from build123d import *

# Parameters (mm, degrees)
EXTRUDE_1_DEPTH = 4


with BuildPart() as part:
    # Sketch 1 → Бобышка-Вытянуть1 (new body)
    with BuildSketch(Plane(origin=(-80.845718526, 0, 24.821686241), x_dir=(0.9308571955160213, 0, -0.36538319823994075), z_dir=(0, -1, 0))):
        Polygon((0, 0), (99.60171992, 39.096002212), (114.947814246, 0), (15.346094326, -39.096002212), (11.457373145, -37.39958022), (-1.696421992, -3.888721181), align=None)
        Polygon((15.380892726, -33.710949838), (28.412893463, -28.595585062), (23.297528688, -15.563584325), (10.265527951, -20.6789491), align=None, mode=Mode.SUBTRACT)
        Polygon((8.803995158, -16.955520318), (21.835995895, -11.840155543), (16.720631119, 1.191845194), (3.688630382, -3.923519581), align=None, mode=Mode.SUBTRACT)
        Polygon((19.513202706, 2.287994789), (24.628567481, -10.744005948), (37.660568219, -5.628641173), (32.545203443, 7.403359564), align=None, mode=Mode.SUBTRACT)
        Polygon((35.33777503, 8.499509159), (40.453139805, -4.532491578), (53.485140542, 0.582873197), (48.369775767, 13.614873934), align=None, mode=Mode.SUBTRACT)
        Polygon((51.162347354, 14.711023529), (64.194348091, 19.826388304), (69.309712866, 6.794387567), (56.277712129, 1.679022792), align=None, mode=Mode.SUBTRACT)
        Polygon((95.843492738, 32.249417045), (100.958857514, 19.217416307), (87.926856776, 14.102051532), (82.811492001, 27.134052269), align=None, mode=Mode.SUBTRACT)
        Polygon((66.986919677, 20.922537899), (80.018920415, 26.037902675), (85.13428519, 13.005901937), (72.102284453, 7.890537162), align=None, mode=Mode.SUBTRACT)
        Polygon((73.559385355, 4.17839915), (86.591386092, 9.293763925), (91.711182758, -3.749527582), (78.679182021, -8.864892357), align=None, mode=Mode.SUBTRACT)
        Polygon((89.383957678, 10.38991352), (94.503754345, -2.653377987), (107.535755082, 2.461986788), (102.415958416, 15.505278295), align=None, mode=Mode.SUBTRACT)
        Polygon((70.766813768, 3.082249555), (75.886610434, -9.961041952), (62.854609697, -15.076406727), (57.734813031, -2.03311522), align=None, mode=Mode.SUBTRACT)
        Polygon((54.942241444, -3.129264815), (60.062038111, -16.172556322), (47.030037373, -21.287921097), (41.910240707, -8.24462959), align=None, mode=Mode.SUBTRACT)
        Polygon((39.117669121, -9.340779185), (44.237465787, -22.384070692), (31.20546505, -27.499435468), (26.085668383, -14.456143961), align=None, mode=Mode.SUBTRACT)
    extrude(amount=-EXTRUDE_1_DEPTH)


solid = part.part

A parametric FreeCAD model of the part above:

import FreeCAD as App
import Part
import Sketcher

V = App.Vector

doc = App.newDocument("Part")
params = doc.addObject("Spreadsheet::Sheet", "Params")
for row, (alias, value) in enumerate([
    ("sketch1_width", "107 mm"),
    ("sketch1_width2", "14 mm"),
    ("sketch1_height", "36 mm"),
    ("sketch1_height2", "42 mm"),
    ("pad1_length", "4 mm"),
], start=1):
    params.set(f"A{row}", alias)
    params.set(f"B{row}", "=" + value)
    params.setAlias(f"B{row}", alias)

body = doc.addObject("PartDesign::Body", "Body")

sketch1 = doc.addObject("Sketcher::SketchObject", "Sketch")
body.addObject(sketch1)
sketch1.AttachmentSupport = (doc.XZ_Plane, [""])
sketch1.MapMode = "FlatFace"
sketch1.addGeometry(Part.LineSegment(V(26.154282, 24.821686, 0), V(-80.845719, 24.821686, 0)), False)
sketch1.addGeometry(Part.LineSegment(V(-80.845719, 24.821686, 0), V(-83.845719, 21.821686, 0)), False)
sketch1.addGeometry(Part.LineSegment(V(-83.845719, 21.821686, 0), V(-83.845719, -14.178314, 0)), False)
sketch1.addGeometry(Part.LineSegment(V(-83.845719, -14.178314, 0), V(-80.845719, -17.178314, 0)), False)
sketch1.addGeometry(Part.LineSegment(V(-80.845719, -17.178314, 0), V(26.154282, -17.178314, 0)), False)
sketch1.addGeometry(Part.LineSegment(V(26.154282, -17.178314, 0), V(26.154282, 24.821686, 0)), False)
sketch1.addGeometry(Part.LineSegment(V(-13.845718, 1.833816, 0), V(-13.845718, -12.178314, 0)), False)
sketch1.addGeometry(Part.LineSegment(V(-13.845718, -12.178314, 0), V(-27.845718, -12.178314, 0)), False)
sketch1.addGeometry(Part.LineSegment(V(-27.845718, -12.178314, 0), V(-27.845718, 1.833816, 0)), False)
sketch1.addGeometry(Part.LineSegment(V(-27.845718, 1.833816, 0), V(-13.845718, 1.833816, 0)), False)
sketch1.addGeometry(Part.LineSegment(V(-47.845719, 1.833816, 0), V(-47.845718, -12.178314, 0)), False)
sketch1.addGeometry(Part.LineSegment(V(-47.845718, -12.178314, 0), V(-61.845719, -12.178314, 0)), False)
sketch1.addGeometry(Part.LineSegment(V(-61.845719, -12.178314, 0), V(-61.845719, 1.833816, 0)), False)
sketch1.addGeometry(Part.LineSegment(V(-61.845719, 1.833816, 0), V(-47.845719, 1.833816, 0)), False)
sketch1.addGeometry(Part.LineSegment(V(-78.845719, -12.178314, 0), V(-78.845719, 1.821686, 0)), False)
sketch1.addGeometry(Part.LineSegment(V(-78.845719, 1.821686, 0), V(-64.845719, 1.821686, 0)), False)
sketch1.addGeometry(Part.LineSegment(V(-64.845719, 1.821686, 0), V(-64.845719, -12.178314, 0)), False)
sketch1.addGeometry(Part.LineSegment(V(-64.845719, -12.178314, 0), V(-78.845719, -12.178314, 0)), False)
sketch1.addGeometry(Part.LineSegment(V(-30.845718, 1.833816, 0), V(-30.845718, -12.178314, 0)), False)
sketch1.addGeometry(Part.LineSegment(V(-30.845718, -12.178314, 0), V(-44.845718, -12.178314, 0)), False)
sketch1.addGeometry(Part.LineSegment(V(-44.845718, -12.178314, 0), V(-44.845719, 1.833816, 0)), False)
sketch1.addGeometry(Part.LineSegment(V(-44.845719, 1.833816, 0), V(-30.845718, 1.833816, 0)), False)
sketch1.addGeometry(Part.LineSegment(V(-61.845719, 19.821686, 0), V(-47.845719, 19.821686, 0)), False)
sketch1.addGeometry(Part.LineSegment(V(-47.845719, 19.821686, 0), V(-47.845719, 5.821686, 0)), False)
sketch1.addGeometry(Part.LineSegment(V(-47.845719, 5.821686, 0), V(-61.845719, 5.821686, 0)), False)
sketch1.addGeometry(Part.LineSegment(V(-61.845719, 5.821686, 0), V(-61.845719, 19.821686, 0)), False)
sketch1.addGeometry(Part.LineSegment(V(-78.845719, 5.821686, 0), V(-78.845719, 19.821686, 0)), False)
sketch1.addGeometry(Part.LineSegment(V(-78.845719, 19.821686, 0), V(-64.845719, 19.821686, 0)), False)
sketch1.addGeometry(Part.LineSegment(V(-64.845719, 19.821686, 0), V(-64.845719, 5.821686, 0)), False)
sketch1.addGeometry(Part.LineSegment(V(-64.845719, 5.821686, 0), V(-78.845719, 5.821686, 0)), False)
sketch1.addGeometry(Part.LineSegment(V(6.154282, 1.833816, 0), V(20.154282, 1.833816, 0)), False)
sketch1.addGeometry(Part.LineSegment(V(20.154282, 1.833816, 0), V(20.154282, -12.178314, 0)), False)
sketch1.addGeometry(Part.LineSegment(V(20.154282, -12.178314, 0), V(6.154282, -12.178314, 0)), False)
sketch1.addGeometry(Part.LineSegment(V(6.154282, -12.178314, 0), V(6.154282, 1.833816, 0)), False)
sketch1.addGeometry(Part.LineSegment(V(-10.845718, 1.833816, 0), V(3.154282, 1.833816, 0)), False)
sketch1.addGeometry(Part.LineSegment(V(3.154282, 1.833816, 0), V(3.154282, -12.178314, 0)), False)
sketch1.addGeometry(Part.LineSegment(V(3.154282, -12.178314, 0), V(-10.845718, -12.178314, 0)), False)
sketch1.addGeometry(Part.LineSegment(V(-10.845718, -12.178314, 0), V(-10.845718, 1.833816, 0)), False)
sketch1.addGeometry(Part.LineSegment(V(-27.845719, 19.821686, 0), V(-13.845719, 19.821686, 0)), False)
sketch1.addGeometry(Part.LineSegment(V(-13.845719, 19.821686, 0), V(-13.845718, 5.821686, 0)), False)
sketch1.addGeometry(Part.LineSegment(V(-13.845718, 5.821686, 0), V(-27.845718, 5.821686, 0)), False)
sketch1.addGeometry(Part.LineSegment(V(-27.845718, 5.821686, 0), V(-27.845719, 19.821686, 0)), False)
sketch1.addGeometry(Part.LineSegment(V(20.154282, 19.821686, 0), V(20.154282, 5.821686, 0)), False)
sketch1.addGeometry(Part.LineSegment(V(20.154282, 5.821686, 0), V(6.154282, 5.821686, 0)), False)
sketch1.addGeometry(Part.LineSegment(V(6.154282, 5.821686, 0), V(6.154282, 19.821686, 0)), False)
sketch1.addGeometry(Part.LineSegment(V(6.154282, 19.821686, 0), V(20.154282, 19.821686, 0)), False)
sketch1.addGeometry(Part.LineSegment(V(-10.845718, 19.821686, 0), V(3.154282, 19.821686, 0)), False)
sketch1.addGeometry(Part.LineSegment(V(3.154282, 19.821686, 0), V(3.154282, 5.821686, 0)), False)
sketch1.addGeometry(Part.LineSegment(V(3.154282, 5.821686, 0), V(-10.845718, 5.821686, 0)), False)
sketch1.addGeometry(Part.LineSegment(V(-10.845718, 5.821686, 0), V(-10.845718, 19.821686, 0)), False)
sketch1.addGeometry(Part.LineSegment(V(-44.845719, 19.821686, 0), V(-30.845719, 19.821686, 0)), False)
sketch1.addGeometry(Part.LineSegment(V(-30.845719, 19.821686, 0), V(-30.845719, 5.821686, 0)), False)
sketch1.addGeometry(Part.LineSegment(V(-30.845719, 5.821686, 0), V(-44.845719, 5.821686, 0)), False)
sketch1.addGeometry(Part.LineSegment(V(-44.845719, 5.821686, 0), V(-44.845719, 19.821686, 0)), False)
sketch1.addConstraint(Sketcher.Constraint("Coincident", 0, 2, 1, 1))
sketch1.addConstraint(Sketcher.Constraint("Coincident", 1, 2, 2, 1))
sketch1.addConstraint(Sketcher.Constraint("Coincident", 2, 2, 3, 1))
sketch1.addConstraint(Sketcher.Constraint("Coincident", 3, 2, 4, 1))
sketch1.addConstraint(Sketcher.Constraint("Coincident", 4, 2, 5, 1))
sketch1.addConstraint(Sketcher.Constraint("Coincident", 5, 2, 0, 1))
sketch1.addConstraint(Sketcher.Constraint("Coincident", 6, 2, 7, 1))
sketch1.addConstraint(Sketcher.Constraint("Coincident", 7, 2, 8, 1))
sketch1.addConstraint(Sketcher.Constraint("Coincident", 8, 2, 9, 1))
sketch1.addConstraint(Sketcher.Constraint("Coincident", 9, 2, 6, 1))
sketch1.addConstraint(Sketcher.Constraint("Coincident", 10, 2, 11, 1))
sketch1.addConstraint(Sketcher.Constraint("Coincident", 11, 2, 12, 1))
sketch1.addConstraint(Sketcher.Constraint("Coincident", 12, 2, 13, 1))
sketch1.addConstraint(Sketcher.Constraint("Coincident", 13, 2, 10, 1))
sketch1.addConstraint(Sketcher.Constraint("Coincident", 14, 2, 15, 1))
sketch1.addConstraint(Sketcher.Constraint("Coincident", 15, 2, 16, 1))
sketch1.addConstraint(Sketcher.Constraint("Coincident", 16, 2, 17, 1))
sketch1.addConstraint(Sketcher.Constraint("Coincident", 17, 2, 14, 1))
sketch1.addConstraint(Sketcher.Constraint("Coincident", 18, 2, 19, 1))
sketch1.addConstraint(Sketcher.Constraint("Coincident", 19, 2, 20, 1))
sketch1.addConstraint(Sketcher.Constraint("Coincident", 20, 2, 21, 1))
sketch1.addConstraint(Sketcher.Constraint("Coincident", 21, 2, 18, 1))
sketch1.addConstraint(Sketcher.Constraint("Coincident", 22, 2, 23, 1))
sketch1.addConstraint(Sketcher.Constraint("Coincident", 23, 2, 24, 1))
sketch1.addConstraint(Sketcher.Constraint("Coincident", 24, 2, 25, 1))
sketch1.addConstraint(Sketcher.Constraint("Coincident", 25, 2, 22, 1))
sketch1.addConstraint(Sketcher.Constraint("Coincident", 26, 2, 27, 1))
sketch1.addConstraint(Sketcher.Constraint("Coincident", 27, 2, 28, 1))
sketch1.addConstraint(Sketcher.Constraint("Coincident", 28, 2, 29, 1))
sketch1.addConstraint(Sketcher.Constraint("Coincident", 29, 2, 26, 1))
sketch1.addConstraint(Sketcher.Constraint("Coincident", 30, 2, 31, 1))
sketch1.addConstraint(Sketcher.Constraint("Coincident", 31, 2, 32, 1))
sketch1.addConstraint(Sketcher.Constraint("Coincident", 32, 2, 33, 1))
sketch1.addConstraint(Sketcher.Constraint("Coincident", 33, 2, 30, 1))
sketch1.addConstraint(Sketcher.Constraint("Coincident", 34, 2, 35, 1))
sketch1.addConstraint(Sketcher.Constraint("Coincident", 35, 2, 36, 1))
sketch1.addConstraint(Sketcher.Constraint("Coincident", 36, 2, 37, 1))
sketch1.addConstraint(Sketcher.Constraint("Coincident", 37, 2, 34, 1))
sketch1.addConstraint(Sketcher.Constraint("Coincident", 38, 2, 39, 1))
sketch1.addConstraint(Sketcher.Constraint("Coincident", 39, 2, 40, 1))
sketch1.addConstraint(Sketcher.Constraint("Coincident", 40, 2, 41, 1))
sketch1.addConstraint(Sketcher.Constraint("Coincident", 41, 2, 38, 1))
sketch1.addConstraint(Sketcher.Constraint("Coincident", 42, 2, 43, 1))
sketch1.addConstraint(Sketcher.Constraint("Coincident", 43, 2, 44, 1))
sketch1.addConstraint(Sketcher.Constraint("Coincident", 44, 2, 45, 1))
sketch1.addConstraint(Sketcher.Constraint("Coincident", 45, 2, 42, 1))
sketch1.addConstraint(Sketcher.Constraint("Coincident", 46, 2, 47, 1))
sketch1.addConstraint(Sketcher.Constraint("Coincident", 47, 2, 48, 1))
sketch1.addConstraint(Sketcher.Constraint("Coincident", 48, 2, 49, 1))
sketch1.addConstraint(Sketcher.Constraint("Coincident", 49, 2, 46, 1))
sketch1.addConstraint(Sketcher.Constraint("Coincident", 50, 2, 51, 1))
sketch1.addConstraint(Sketcher.Constraint("Coincident", 51, 2, 52, 1))
sketch1.addConstraint(Sketcher.Constraint("Coincident", 52, 2, 53, 1))
sketch1.addConstraint(Sketcher.Constraint("Coincident", 53, 2, 50, 1))
sketch1.addConstraint(Sketcher.Constraint("Horizontal", 0))
sketch1.addConstraint(Sketcher.Constraint("Vertical", 2))
sketch1.addConstraint(Sketcher.Constraint("Horizontal", 4))
sketch1.addConstraint(Sketcher.Constraint("Vertical", 5))
sketch1.addConstraint(Sketcher.Constraint("Vertical", 6))
sketch1.addConstraint(Sketcher.Constraint("Horizontal", 7))
sketch1.addConstraint(Sketcher.Constraint("Vertical", 8))
sketch1.addConstraint(Sketcher.Constraint("Horizontal", 9))
sketch1.addConstraint(Sketcher.Constraint("Vertical", 10))
sketch1.addConstraint(Sketcher.Constraint("Horizontal", 11))
sketch1.addConstraint(Sketcher.Constraint("Vertical", 12))
sketch1.addConstraint(Sketcher.Constraint("Horizontal", 13))
sketch1.addConstraint(Sketcher.Constraint("Vertical", 14))
sketch1.addConstraint(Sketcher.Constraint("Horizontal", 15))
sketch1.addConstraint(Sketcher.Constraint("Vertical", 16))
sketch1.addConstraint(Sketcher.Constraint("Horizontal", 17))
sketch1.addConstraint(Sketcher.Constraint("Vertical", 18))
sketch1.addConstraint(Sketcher.Constraint("Horizontal", 19))
sketch1.addConstraint(Sketcher.Constraint("Vertical", 20))
sketch1.addConstraint(Sketcher.Constraint("Horizontal", 21))
sketch1.addConstraint(Sketcher.Constraint("Horizontal", 22))
sketch1.addConstraint(Sketcher.Constraint("Vertical", 23))
sketch1.addConstraint(Sketcher.Constraint("Horizontal", 24))
sketch1.addConstraint(Sketcher.Constraint("Vertical", 25))
sketch1.addConstraint(Sketcher.Constraint("Vertical", 26))
sketch1.addConstraint(Sketcher.Constraint("Horizontal", 27))
sketch1.addConstraint(Sketcher.Constraint("Vertical", 28))
sketch1.addConstraint(Sketcher.Constraint("Horizontal", 29))
sketch1.addConstraint(Sketcher.Constraint("Horizontal", 30))
sketch1.addConstraint(Sketcher.Constraint("Vertical", 31))
sketch1.addConstraint(Sketcher.Constraint("Horizontal", 32))
sketch1.addConstraint(Sketcher.Constraint("Vertical", 33))
sketch1.addConstraint(Sketcher.Constraint("Horizontal", 34))
sketch1.addConstraint(Sketcher.Constraint("Vertical", 35))
sketch1.addConstraint(Sketcher.Constraint("Horizontal", 36))
sketch1.addConstraint(Sketcher.Constraint("Vertical", 37))
sketch1.addConstraint(Sketcher.Constraint("Horizontal", 38))
sketch1.addConstraint(Sketcher.Constraint("Vertical", 39))
sketch1.addConstraint(Sketcher.Constraint("Horizontal", 40))
sketch1.addConstraint(Sketcher.Constraint("Vertical", 41))
sketch1.addConstraint(Sketcher.Constraint("Vertical", 42))
sketch1.addConstraint(Sketcher.Constraint("Horizontal", 43))
sketch1.addConstraint(Sketcher.Constraint("Vertical", 44))
sketch1.addConstraint(Sketcher.Constraint("Horizontal", 45))
sketch1.addConstraint(Sketcher.Constraint("Horizontal", 46))
sketch1.addConstraint(Sketcher.Constraint("Vertical", 47))
sketch1.addConstraint(Sketcher.Constraint("Horizontal", 48))
sketch1.addConstraint(Sketcher.Constraint("Vertical", 49))
sketch1.addConstraint(Sketcher.Constraint("Horizontal", 50))
sketch1.addConstraint(Sketcher.Constraint("Vertical", 51))
sketch1.addConstraint(Sketcher.Constraint("Horizontal", 52))
sketch1.addConstraint(Sketcher.Constraint("Vertical", 53))
sketch1.addConstraint(Sketcher.Constraint("Perpendicular", 1, 3))
sketch1.addConstraint(Sketcher.Constraint("Horizontal", 7, 2, 10, 2))
sketch1.addConstraint(Sketcher.Constraint("Horizontal", 9, 2, 12, 2))
sketch1.addConstraint(Sketcher.Constraint("Horizontal", 11, 2, 16, 2))
sketch1.addConstraint(Sketcher.Constraint("Horizontal", 17, 2, 18, 2))
sketch1.addConstraint(Sketcher.Constraint("Horizontal", 13, 2, 20, 2))
sketch1.addConstraint(Sketcher.Constraint("Horizontal", 25, 2, 26, 2))
sketch1.addConstraint(Sketcher.Constraint("Horizontal", 24, 2, 28, 2))
sketch1.addConstraint(Sketcher.Constraint("Horizontal", 21, 2, 30, 2))
sketch1.addConstraint(Sketcher.Constraint("Horizontal", 19, 2, 31, 2))
sketch1.addConstraint(Sketcher.Constraint("Horizontal", 33, 2, 34, 2))
sketch1.addConstraint(Sketcher.Constraint("Horizontal", 32, 2, 35, 2))
sketch1.addConstraint(Sketcher.Constraint("Horizontal", 27, 2, 38, 2))
sketch1.addConstraint(Sketcher.Constraint("Horizontal", 29, 2, 39, 2))
sketch1.addConstraint(Sketcher.Constraint("Horizontal", 40, 2, 42, 2))
sketch1.addConstraint(Sketcher.Constraint("Horizontal", 41, 2, 44, 2))
sketch1.addConstraint(Sketcher.Constraint("Horizontal", 45, 2, 46, 2))
sketch1.addConstraint(Sketcher.Constraint("Horizontal", 43, 2, 47, 2))
sketch1.addConstraint(Sketcher.Constraint("Horizontal", 49, 2, 50, 2))
sketch1.addConstraint(Sketcher.Constraint("Horizontal", 48, 2, 51, 2))
sketch1.addConstraint(Sketcher.Constraint("Vertical", 0, 2, 3, 2))
sketch1.addConstraint(Sketcher.Constraint("Vertical", 13, 2, 22, 2))
sketch1.addConstraint(Sketcher.Constraint("Vertical", 12, 2, 24, 2))
sketch1.addConstraint(Sketcher.Constraint("Vertical", 17, 2, 26, 2))
sketch1.addConstraint(Sketcher.Constraint("Vertical", 16, 2, 27, 2))
sketch1.addConstraint(Sketcher.Constraint("Vertical", 9, 2, 38, 2))
sketch1.addConstraint(Sketcher.Constraint("Vertical", 8, 2, 40, 2))
sketch1.addConstraint(Sketcher.Constraint("Vertical", 31, 2, 42, 2))
sketch1.addConstraint(Sketcher.Constraint("Vertical", 33, 2, 43, 2))
sketch1.addConstraint(Sketcher.Constraint("Vertical", 35, 2, 46, 2))
sketch1.addConstraint(Sketcher.Constraint("Vertical", 37, 2, 48, 2))
sketch1.addConstraint(Sketcher.Constraint("Vertical", 21, 2, 50, 2))
sketch1.addConstraint(Sketcher.Constraint("Vertical", 20, 2, 52, 2))
sketch1.addConstraint(Sketcher.Constraint("Equal", 9, 11))
sketch1.addConstraint(Sketcher.Constraint("Equal", 13, 15))
sketch1.addConstraint(Sketcher.Constraint("Equal", 17, 19))
sketch1.addConstraint(Sketcher.Constraint("Equal", 29, 30))
sketch1.addConstraint(Sketcher.Constraint("Equal", 32, 34))
sketch1.addConstraint(Sketcher.Constraint("Equal", 52, 14))
sketch1.addConstraint(Sketcher.Constraint("Equal", 16, 23))
sketch1.addConstraint(Sketcher.Constraint("Equal", 1, 3))
sketch1.addConstraint(Sketcher.Constraint("DistanceX", 0, 2, 0, 1, 107.0))
sketch1.addConstraint(Sketcher.Constraint("DistanceX", 7, 2, 7, 1, 14.0))
sketch1.addConstraint(Sketcher.Constraint("DistanceY", 2, 2, 2, 1, 36.0))
sketch1.addConstraint(Sketcher.Constraint("DistanceY", 5, 1, 5, 2, 42.0))
sketch1.addConstraint(Sketcher.Constraint("DistanceX", 6, 2, 4, 2, 40.0))
sketch1.addConstraint(Sketcher.Constraint("DistanceY", 4, 2, 6, 2, 5.0))
sketch1.addConstraint(Sketcher.Constraint("DistanceX", 10, 2, 7, 2, 20.0))
sketch1.addConstraint(Sketcher.Constraint("DistanceX", 2, 2, 14, 2, 5.0))
sketch1.addConstraint(Sketcher.Constraint("DistanceX", 18, 2, 7, 2, 3.0))
sketch1.addConstraint(Sketcher.Constraint("DistanceY", 15, 2, 22, 2, 18.0))
sketch1.addConstraint(Sketcher.Constraint("DistanceX", 30, 2, 4, 2, 6.0))
sketch1.addConstraint(Sketcher.Constraint("DistanceX", 34, 2, 33, 2, 3.0))
sketch1.addConstraint(Sketcher.Constraint("DistanceY", 6, 2, 6, 1, 14.012129))
sketch1.addConstraint(Sketcher.Constraint("DistanceX", 0, 2, -1, 1, 80.845719))
sketch1.addConstraint(Sketcher.Constraint("DistanceY", -1, 1, 0, 2, 24.821686))
sketch1.setExpression("Constraints[147]", "Params.sketch1_width")
sketch1.setExpression("Constraints[148]", "Params.sketch1_width2")
sketch1.setExpression("Constraints[149]", "Params.sketch1_height")
sketch1.setExpression("Constraints[150]", "Params.sketch1_height2")
pad1 = doc.addObject("PartDesign::Pad", "Pad")
body.addObject(pad1)
pad1.Profile = sketch1
pad1.setExpression("Length", "Params.pad1_length")
pad1.Reversed = True

doc.recompute()
